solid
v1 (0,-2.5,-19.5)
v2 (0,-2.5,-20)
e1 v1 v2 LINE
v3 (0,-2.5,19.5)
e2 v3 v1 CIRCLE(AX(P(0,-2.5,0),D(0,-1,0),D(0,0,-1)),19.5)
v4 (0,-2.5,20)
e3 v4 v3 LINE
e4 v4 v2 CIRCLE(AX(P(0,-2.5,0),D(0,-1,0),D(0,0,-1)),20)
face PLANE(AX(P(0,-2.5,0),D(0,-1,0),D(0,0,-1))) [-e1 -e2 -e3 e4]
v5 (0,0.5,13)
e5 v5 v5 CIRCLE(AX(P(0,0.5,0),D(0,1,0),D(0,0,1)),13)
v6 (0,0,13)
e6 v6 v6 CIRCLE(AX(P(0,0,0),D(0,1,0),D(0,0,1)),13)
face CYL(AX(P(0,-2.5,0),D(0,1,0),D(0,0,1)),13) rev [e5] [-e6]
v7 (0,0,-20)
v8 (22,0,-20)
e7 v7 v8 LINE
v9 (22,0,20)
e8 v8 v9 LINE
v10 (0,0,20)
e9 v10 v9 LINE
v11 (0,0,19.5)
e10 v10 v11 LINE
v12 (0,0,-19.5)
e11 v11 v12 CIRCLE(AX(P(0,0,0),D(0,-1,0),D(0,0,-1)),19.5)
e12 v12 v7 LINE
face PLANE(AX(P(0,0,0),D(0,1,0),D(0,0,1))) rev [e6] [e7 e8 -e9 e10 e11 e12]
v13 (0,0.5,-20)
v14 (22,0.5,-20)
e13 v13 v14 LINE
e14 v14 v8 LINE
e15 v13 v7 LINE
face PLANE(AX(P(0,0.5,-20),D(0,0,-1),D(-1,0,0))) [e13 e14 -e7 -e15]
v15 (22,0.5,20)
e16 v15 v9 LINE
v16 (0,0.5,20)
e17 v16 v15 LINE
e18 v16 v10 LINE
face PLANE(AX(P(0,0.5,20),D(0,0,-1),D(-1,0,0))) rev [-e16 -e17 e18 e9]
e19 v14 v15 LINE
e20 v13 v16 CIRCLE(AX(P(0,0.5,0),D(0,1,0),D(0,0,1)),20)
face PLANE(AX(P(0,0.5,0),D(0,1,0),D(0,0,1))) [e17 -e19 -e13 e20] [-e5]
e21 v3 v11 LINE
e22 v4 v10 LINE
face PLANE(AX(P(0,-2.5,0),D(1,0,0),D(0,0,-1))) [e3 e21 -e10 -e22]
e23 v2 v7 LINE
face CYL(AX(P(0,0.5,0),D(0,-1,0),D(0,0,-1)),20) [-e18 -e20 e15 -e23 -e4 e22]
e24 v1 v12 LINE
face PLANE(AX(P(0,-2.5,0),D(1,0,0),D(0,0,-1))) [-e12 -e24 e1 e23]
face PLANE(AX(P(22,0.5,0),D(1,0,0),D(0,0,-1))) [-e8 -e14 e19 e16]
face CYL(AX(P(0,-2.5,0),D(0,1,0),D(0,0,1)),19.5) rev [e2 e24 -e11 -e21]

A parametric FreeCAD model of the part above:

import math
import FreeCAD as App
import Part
import Sketcher

V = App.Vector

doc = App.newDocument("Part")
body = doc.addObject("PartDesign::Body", "Body")

# Sketch on XZ plane
sketch1 = body.newObject("Sketcher::SketchObject", "Sketch")
sketch1.AttachmentSupport = (doc.getObject("XZ_Plane"), [""])
sketch1.MapMode = "FlatFace"
sketch1.addGeometry([
    Part.ArcOfCircle(Part.Circle(V(0, 0, 0), V(0, 0, 1), 20), math.radians(90), math.radians(270)),
    Part.LineSegment(V(0, 20, 0), V(22, 20, 0)),
    Part.LineSegment(V(22, 20, 0), V(22, -20, 0)),
    Part.LineSegment(V(22, -20, 0), V(0, -20, 0)),
], False)
sketch1.addConstraint([
    Sketcher.Constraint("Tangent", 0, 1, 1, 1),
    Sketcher.Constraint("Coincident", 1, 2, 2, 1),
    Sketcher.Constraint("Coincident", 2, 2, 3, 1),
    Sketcher.Constraint("Tangent", 3, 2, 0, 2),
    Sketcher.Constraint("Horizontal", 1),
    Sketcher.Constraint("Vertical", 2),
    Sketcher.Constraint("Horizontal", 3),
    Sketcher.Constraint("Coincident", 0, 3, -1, 1),
    Sketcher.Constraint("Radius", 0, 20.0),
    Sketcher.Constraint("DistanceX", 1, 1, 1, 2, 22.0),
])
pad1 = body.newObject("PartDesign::Pad", "Pad")
pad1.Profile = sketch1
pad1.Length = 0.5
pad1.Reversed = True

# Sketch on XZ plane
sketch2 = body.newObject("Sketcher::SketchObject", "Sketch001")
sketch2.AttachmentSupport = (doc.getObject("XZ_Plane"), [""])
sketch2.MapMode = "FlatFace"
sketch2.AttachmentOffset = App.Placement(V(0, 0, 2.5), App.Rotation())
sketch2.addGeometry([
    Part.LineSegment(V(0, 19.5, 0), V(0, 20, 0)),
    Part.ArcOfCircle(Part.Circle(V(0, 0, 0), V(0, 0, 1), 20), math.radians(90), math.radians(270)),
    Part.LineSegment(V(0, -20, 0), V(0, -19.5, 0)),
    Part.ArcOfCircle(Part.Circle(V(0, 0, 0), V(0, 0, 1), 19.5), math.radians(90), math.radians(270)),
], False)
sketch2.addConstraint([
    Sketcher.Constraint("Coincident", 0, 2, 1, 1),
    Sketcher.Constraint("Coincident", 1, 2, 2, 1),
    Sketcher.Constraint("Coincident", 2, 2, 3, 2),
    Sketcher.Constraint("Coincident", 3, 1, 0, 1),
    Sketcher.Constraint("Vertical", 0),
    Sketcher.Constraint("Vertical", 2),
    Sketcher.Constraint("Coincident", 1, 3, -1, 1),
    Sketcher.Constraint("Coincident", 3, 3, -1, 1),
    Sketcher.Constraint("PointOnObject", 0, 2, -2),
    Sketcher.Constraint("PointOnObject", 1, 2, -2),
    Sketcher.Constraint("Radius", 1, 20.0),
    Sketcher.Constraint("Radius", 3, 19.5),
])
pad2 = body.newObject("PartDesign::Pad", "Pad001")
pad2.Profile = sketch2
pad2.Length = 2.5
pad2.Reversed = True

# Sketch on XZ plane
sketch3 = body.newObject("Sketcher::SketchObject", "Sketch002")
sketch3.AttachmentSupport = (doc.getObject("XZ_Plane"), [""])
sketch3.MapMode = "FlatFace"
sketch3.AttachmentOffset = App.Placement(V(0, 0, -0.5), App.Rotation())
sketch3.addGeometry(Part.Circle(V(0, 0, 0), V(0, 0, 1), 13), False)
sketch3.addConstraint([
    Sketcher.Constraint("Coincident", 0, 3, -1, 1),
    Sketcher.Constraint("Diameter", 0, 26.0),
])
pocket1 = body.newObject("PartDesign::Pocket", "Pocket")
pocket1.Profile = sketch3
pocket1.Type = "ThroughAll"
pocket1.Reversed = True

doc.recompute()
